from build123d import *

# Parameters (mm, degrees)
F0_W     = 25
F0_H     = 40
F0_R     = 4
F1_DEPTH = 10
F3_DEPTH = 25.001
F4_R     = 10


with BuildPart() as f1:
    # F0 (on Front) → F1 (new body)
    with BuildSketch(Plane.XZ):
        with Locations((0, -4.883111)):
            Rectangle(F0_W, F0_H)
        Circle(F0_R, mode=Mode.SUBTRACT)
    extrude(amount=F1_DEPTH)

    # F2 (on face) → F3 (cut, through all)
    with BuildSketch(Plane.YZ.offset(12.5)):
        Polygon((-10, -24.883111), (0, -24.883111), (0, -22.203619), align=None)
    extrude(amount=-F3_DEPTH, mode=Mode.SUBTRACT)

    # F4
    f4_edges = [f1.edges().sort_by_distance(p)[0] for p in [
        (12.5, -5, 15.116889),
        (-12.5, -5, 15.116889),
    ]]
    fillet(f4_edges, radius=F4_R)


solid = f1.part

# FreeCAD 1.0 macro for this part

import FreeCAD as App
import Part
import Sketcher
Q = App.Units.Quantity


def edges_at(feature, points):
    """Names of the edges that pass closest to the given points."""
    edges = feature.Shape.Edges
    near = lambda p: min(range(len(edges)), key=lambda i: edges[i].distToShape(Part.Vertex(*p))[0])
    return sorted({f"Edge{near(p) + 1}" for p in points})


def add_polygon(sketch, points):
    """Adds a closed chain of lines whose ends are joined by coincident constraints."""
    first, n = sketch.GeometryCount, len(points)
    for a, b in zip(points, points[1:] + points[:1]):
        sketch.addGeometry(Part.LineSegment(App.Vector(*a, 0), App.Vector(*b, 0)), False)
    for i in range(n):
        sketch.addConstraint(Sketcher.Constraint("Coincident", first + i, 2, first + (i + 1) % n, 1))

doc = App.newDocument("Part")
params = doc.addObject("Spreadsheet::Sheet", "Params")
for row, (alias, value) in enumerate([
    ("sketch1_diameter", "8 mm"),
    ("sketch1_width", "25 mm"),
    ("sketch1_height", "40 mm"),
    ("pad1_length", "10 mm"),
    ("sketch2_width", "10 mm"),
    ("fillet_radius", "10 mm"),
], start=1):
    params.set(f"A{row}", alias)
    params.set(f"B{row}", "=" + value)
    params.setAlias(f"B{row}", alias)

body = doc.addObject("PartDesign::Body", "Body")

sketch1 = doc.addObject("Sketcher::SketchObject", "Sketch")
body.addObject(sketch1)
sketch1.AttachmentSupport = (doc.XZ_Plane, [""])
sketch1.MapMode = "FlatFace"
add_polygon(sketch1, [(-12.5, 15.1), (-12.5, -24.9), (12.5, -24.9), (12.5, 15.1)])
sketch1.addGeometry(Part.Circle(App.Vector(0, 0, 0), App.Vector(0, 0, 1), 4), False)
sketch1.addConstraint([
    Sketcher.Constraint("Vertical", 0),
    Sketcher.Constraint("Horizontal", 1),
    Sketcher.Constraint("Vertical", 2),
    Sketcher.Constraint("Horizontal", 3),
    Sketcher.Constraint("Coincident", 4, 3, -1, 1),
    Sketcher.Constraint("Diameter", 4, 8.0),
    Sketcher.Constraint("DistanceX", 1, 1, 1, 2, 25.0),
    Sketcher.Constraint("DistanceY", 0, 2, 0, 1, 40.0),
    Sketcher.Constraint("DistanceX", 0, 2, -1, 1, 12.5),
    Sketcher.Constraint("DistanceY", 0, 2, -1, 1, 24.883111),
])
sketch1.setExpression("Constraints[9]", "Params.sketch1_diameter")
sketch1.setExpression("Constraints[10]", "Params.sketch1_width")
sketch1.setExpression("Constraints[11]", "Params.sketch1_height")
pad1 = doc.addObject("PartDesign::Pad", "Pad")
body.addObject(pad1)
pad1.Profile = sketch1
pad1.setExpression("Length", "Params.pad1_length")

sketch2 = doc.addObject("Sketcher::SketchObject", "Sketch001")
body.addObject(sketch2)
sketch2.AttachmentSupport = (doc.YZ_Plane, [""])
sketch2.MapMode = "FlatFace"
sketch2.AttachmentOffset = App.Placement(App.Vector(0, 0, 12.5), App.Rotation())
add_polygon(sketch2, [(-10, -24.9), (0, -24.9), (0, -22.2)])
sketch2.addConstraint([
    Sketcher.Constraint("Horizontal", 0),
    Sketcher.Constraint("Vertical", 1),
    Sketcher.Constraint("PointOnObject", 0, 2, -2),
    Sketcher.Constraint("DistanceX", 0, 1, 0, 2, 10.0),
    Sketcher.Constraint("Angle", 2, Q("-165 deg")),
    Sketcher.Constraint("DistanceY", 0, 2, -1, 1, 24.883111),
])
sketch2.setExpression("Constraints[6]", "Params.sketch2_width")
pocket1 = doc.addObject("PartDesign::Pocket", "Pocket")
body.addObject(pocket1)
pocket1.Profile = sketch2
pocket1.Type = "ThroughAll"
doc.recompute()

fillet = doc.addObject("PartDesign::Fillet", "Fillet")
body.addObject(fillet)
fillet.Base = (pocket1, edges_at(pocket1, [(12.5, -5, 15.117), (-12.5, -5, 15.117)]))
fillet.setExpression("Radius", "Params.fillet_radius")

doc.recompute()
